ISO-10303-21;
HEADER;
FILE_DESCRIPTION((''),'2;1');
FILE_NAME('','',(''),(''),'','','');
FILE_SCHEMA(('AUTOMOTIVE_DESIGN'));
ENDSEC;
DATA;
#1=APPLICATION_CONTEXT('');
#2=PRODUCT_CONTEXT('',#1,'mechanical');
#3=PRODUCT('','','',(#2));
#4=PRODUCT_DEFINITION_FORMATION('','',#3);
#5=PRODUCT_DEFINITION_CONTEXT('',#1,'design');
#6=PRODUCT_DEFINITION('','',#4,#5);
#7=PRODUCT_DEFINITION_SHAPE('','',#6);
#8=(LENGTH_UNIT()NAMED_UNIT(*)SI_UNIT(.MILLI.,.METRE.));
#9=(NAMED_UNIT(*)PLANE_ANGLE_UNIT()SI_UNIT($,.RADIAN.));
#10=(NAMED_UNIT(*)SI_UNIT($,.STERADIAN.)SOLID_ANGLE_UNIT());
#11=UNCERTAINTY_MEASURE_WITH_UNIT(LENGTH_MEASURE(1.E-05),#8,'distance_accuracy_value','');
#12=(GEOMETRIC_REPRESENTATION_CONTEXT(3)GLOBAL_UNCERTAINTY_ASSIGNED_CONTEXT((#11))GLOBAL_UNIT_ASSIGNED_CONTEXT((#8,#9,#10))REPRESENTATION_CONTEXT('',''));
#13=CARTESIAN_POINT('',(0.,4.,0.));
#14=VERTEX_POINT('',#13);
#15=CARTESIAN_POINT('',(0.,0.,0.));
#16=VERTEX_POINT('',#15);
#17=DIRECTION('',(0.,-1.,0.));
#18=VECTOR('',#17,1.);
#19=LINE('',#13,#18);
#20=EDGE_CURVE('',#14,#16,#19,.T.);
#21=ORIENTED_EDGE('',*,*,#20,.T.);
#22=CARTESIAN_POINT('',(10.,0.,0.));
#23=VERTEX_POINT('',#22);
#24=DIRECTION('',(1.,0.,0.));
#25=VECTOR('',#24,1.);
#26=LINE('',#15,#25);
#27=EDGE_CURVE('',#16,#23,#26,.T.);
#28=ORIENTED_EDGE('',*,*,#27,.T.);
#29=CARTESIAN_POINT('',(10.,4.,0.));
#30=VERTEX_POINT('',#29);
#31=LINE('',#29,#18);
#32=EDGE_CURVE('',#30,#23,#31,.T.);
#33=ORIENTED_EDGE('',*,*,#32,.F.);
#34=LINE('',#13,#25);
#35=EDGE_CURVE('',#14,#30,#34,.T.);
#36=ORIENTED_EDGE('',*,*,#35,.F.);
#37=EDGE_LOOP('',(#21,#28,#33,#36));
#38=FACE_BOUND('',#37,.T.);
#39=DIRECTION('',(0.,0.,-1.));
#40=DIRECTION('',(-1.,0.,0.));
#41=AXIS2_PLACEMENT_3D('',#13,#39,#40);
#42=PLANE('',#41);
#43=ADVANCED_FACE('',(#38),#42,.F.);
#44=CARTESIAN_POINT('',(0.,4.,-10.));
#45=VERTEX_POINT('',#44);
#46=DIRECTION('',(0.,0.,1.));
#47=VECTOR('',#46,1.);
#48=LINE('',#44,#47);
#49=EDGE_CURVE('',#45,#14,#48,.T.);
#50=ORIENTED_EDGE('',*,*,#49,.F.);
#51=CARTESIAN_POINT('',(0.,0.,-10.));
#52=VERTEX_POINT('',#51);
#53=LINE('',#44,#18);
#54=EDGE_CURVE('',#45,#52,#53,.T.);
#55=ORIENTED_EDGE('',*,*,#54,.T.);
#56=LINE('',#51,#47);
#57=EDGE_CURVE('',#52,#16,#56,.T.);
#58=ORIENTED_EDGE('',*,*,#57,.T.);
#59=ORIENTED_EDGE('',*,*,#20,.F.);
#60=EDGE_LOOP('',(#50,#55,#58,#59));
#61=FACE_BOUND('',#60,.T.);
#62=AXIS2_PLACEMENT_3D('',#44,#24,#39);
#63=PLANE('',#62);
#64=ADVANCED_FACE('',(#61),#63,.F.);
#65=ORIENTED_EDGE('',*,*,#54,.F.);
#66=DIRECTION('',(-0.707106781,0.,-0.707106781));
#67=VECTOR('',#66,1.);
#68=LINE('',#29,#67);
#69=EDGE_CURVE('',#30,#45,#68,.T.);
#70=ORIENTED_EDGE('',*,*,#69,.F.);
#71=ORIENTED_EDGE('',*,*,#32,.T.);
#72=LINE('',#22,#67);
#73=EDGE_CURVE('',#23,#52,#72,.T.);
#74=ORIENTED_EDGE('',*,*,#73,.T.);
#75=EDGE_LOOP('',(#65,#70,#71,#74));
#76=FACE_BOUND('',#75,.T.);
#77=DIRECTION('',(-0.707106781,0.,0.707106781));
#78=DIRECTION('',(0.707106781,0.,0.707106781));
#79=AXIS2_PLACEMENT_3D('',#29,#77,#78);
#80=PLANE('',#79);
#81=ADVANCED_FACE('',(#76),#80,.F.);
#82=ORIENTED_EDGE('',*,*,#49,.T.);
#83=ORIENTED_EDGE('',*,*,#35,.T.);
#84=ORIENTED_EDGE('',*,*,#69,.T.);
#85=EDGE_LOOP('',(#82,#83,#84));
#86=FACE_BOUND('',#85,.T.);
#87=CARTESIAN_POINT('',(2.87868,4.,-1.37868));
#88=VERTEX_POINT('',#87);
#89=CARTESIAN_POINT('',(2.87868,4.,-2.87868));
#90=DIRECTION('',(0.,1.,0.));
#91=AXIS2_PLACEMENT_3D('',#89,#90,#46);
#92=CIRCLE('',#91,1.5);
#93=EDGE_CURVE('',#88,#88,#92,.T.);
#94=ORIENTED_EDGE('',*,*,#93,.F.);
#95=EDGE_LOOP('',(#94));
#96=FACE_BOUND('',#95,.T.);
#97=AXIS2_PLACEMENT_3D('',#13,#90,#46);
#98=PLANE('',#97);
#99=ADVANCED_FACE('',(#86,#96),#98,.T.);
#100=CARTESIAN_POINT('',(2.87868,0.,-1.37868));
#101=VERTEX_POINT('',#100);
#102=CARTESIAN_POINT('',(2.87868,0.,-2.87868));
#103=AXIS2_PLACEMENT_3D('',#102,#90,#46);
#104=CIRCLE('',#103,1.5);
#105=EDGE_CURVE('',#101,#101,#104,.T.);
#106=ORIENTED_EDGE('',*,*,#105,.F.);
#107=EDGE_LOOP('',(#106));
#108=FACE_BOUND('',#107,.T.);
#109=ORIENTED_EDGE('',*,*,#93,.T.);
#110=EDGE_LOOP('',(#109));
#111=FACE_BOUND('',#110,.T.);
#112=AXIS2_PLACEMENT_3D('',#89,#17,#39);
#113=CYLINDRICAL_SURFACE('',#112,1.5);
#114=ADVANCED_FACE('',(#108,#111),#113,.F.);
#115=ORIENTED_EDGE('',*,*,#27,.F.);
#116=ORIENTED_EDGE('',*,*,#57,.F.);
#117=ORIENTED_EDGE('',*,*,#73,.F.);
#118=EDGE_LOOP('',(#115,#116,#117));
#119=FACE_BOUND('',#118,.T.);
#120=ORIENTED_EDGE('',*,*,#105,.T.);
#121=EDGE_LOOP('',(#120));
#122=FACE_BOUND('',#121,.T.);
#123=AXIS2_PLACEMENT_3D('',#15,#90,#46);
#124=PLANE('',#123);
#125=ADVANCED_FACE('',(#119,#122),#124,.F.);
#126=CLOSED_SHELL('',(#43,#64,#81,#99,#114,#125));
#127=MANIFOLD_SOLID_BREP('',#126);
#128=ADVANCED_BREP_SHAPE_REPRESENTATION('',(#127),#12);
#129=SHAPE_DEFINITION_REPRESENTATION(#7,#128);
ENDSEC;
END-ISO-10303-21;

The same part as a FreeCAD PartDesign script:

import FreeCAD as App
import Part
import Sketcher
Q = App.Units.Quantity

doc = App.newDocument("Part")
body = doc.addObject("PartDesign::Body", "Body")

sketch1 = body.newObject("Sketcher::SketchObject", "Sketch")
sketch1.AttachmentSupport = (doc.getObject("XZ_Plane"), [""])
sketch1.MapMode = "FlatFace"
sketch1.addGeometry([
    Part.LineSegment(App.Vector(0, -10, 0), App.Vector(0, 0, 0)),
    Part.LineSegment(App.Vector(0, 0, 0), App.Vector(10, 0, 0)),
    Part.LineSegment(App.Vector(10, 0, 0), App.Vector(0, -10, 0)),
    Part.Circle(App.Vector(2.9, -2.9, 0), App.Vector(0, 0, 1), 1.5),
], False)
sketch1.addConstraint([
    Sketcher.Constraint("Coincident", 0, 2, 1, 1),
    Sketcher.Constraint("Coincident", 1, 2, 2, 1),
    Sketcher.Constraint("Coincident", 2, 2, 0, 1),
    Sketcher.Constraint("Vertical", 0),
    Sketcher.Constraint("Horizontal", 1),
    Sketcher.Constraint("Coincident", 0, 2, -1, 1),
    Sketcher.Constraint("Equal", 1, 0),
    Sketcher.Constraint("Diameter", 3, Q("3 mm")),
    Sketcher.Constraint("DistanceX", 1, 1, 1, 2, Q("10 mm")),
    Sketcher.Constraint("DistanceX", -1, 1, 3, 3, Q("2.87868 mm")),
    Sketcher.Constraint("DistanceY", 3, 3, -1, 1, Q("2.87868 mm")),
])
pad1 = body.newObject("PartDesign::Pad", "Pad")
pad1.Profile = sketch1
pad1.Length = 4
pad1.Reversed = True

doc.recompute()
